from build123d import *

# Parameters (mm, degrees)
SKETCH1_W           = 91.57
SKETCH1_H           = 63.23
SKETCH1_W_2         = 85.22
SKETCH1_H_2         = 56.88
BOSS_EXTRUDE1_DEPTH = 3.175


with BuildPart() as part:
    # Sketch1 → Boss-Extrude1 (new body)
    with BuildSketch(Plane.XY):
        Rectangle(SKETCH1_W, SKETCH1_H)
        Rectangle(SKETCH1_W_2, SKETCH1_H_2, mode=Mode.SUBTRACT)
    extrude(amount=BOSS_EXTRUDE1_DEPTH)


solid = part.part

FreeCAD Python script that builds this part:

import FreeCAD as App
import Part
import Sketcher

V = App.Vector
Q = App.Units.Quantity


def add_polygon(sketch, points):
    """Adds a closed chain of lines whose ends are joined by coincident constraints."""
    first, n = sketch.GeometryCount, len(points)
    for a, b in zip(points, points[1:] + points[:1]):
        sketch.addGeometry(Part.LineSegment(App.Vector(*a, 0), App.Vector(*b, 0)), False)
    for i in range(n):
        sketch.addConstraint(Sketcher.Constraint("Coincident", first + i, 2, first + (i + 1) % n, 1))

doc = App.newDocument("Part")
body = doc.addObject("PartDesign::Body", "Body")

sketch1 = body.newObject("Sketcher::SketchObject", "Sketch")
sketch1.AttachmentSupport = (doc.getObject("XY_Plane"), [""])
sketch1.MapMode = "FlatFace"
add_polygon(sketch1, [(-46, 32), (-46, -32), (46, -32), (46, 32)])
add_polygon(sketch1, [(43, -28), (-43, -28), (-43, 28), (43, 28)])
sketch1.addConstraint([
    Sketcher.Constraint("Vertical", 0),
    Sketcher.Constraint("Horizontal", 1),
    Sketcher.Constraint("Vertical", 2),
    Sketcher.Constraint("Horizontal", 3),
    Sketcher.Constraint("Horizontal", 4),
    Sketcher.Constraint("Vertical", 5),
    Sketcher.Constraint("Horizontal", 6),
    Sketcher.Constraint("Vertical", 7),
    Sketcher.Constraint("Symmetric", 0, 2, 2, 2, -1, 1),
    Sketcher.Constraint("Symmetric", 4, 2, 6, 2, -1, 1),
    Sketcher.Constraint("DistanceX", 0, 2, 4, 2, Q("0.125 in")),
    Sketcher.Constraint("DistanceY", 0, 2, 4, 2, Q("0.125 in")),
    Sketcher.Constraint("DistanceX", 1, 1, 1, 2, Q("91.57 mm")),
    Sketcher.Constraint("DistanceY", 0, 2, 0, 1, Q("63.23 mm")),
])
pad1 = body.newObject("PartDesign::Pad", "Pad")
pad1.Profile = sketch1
pad1.Length = Q("0.125 in")

doc.recompute()
